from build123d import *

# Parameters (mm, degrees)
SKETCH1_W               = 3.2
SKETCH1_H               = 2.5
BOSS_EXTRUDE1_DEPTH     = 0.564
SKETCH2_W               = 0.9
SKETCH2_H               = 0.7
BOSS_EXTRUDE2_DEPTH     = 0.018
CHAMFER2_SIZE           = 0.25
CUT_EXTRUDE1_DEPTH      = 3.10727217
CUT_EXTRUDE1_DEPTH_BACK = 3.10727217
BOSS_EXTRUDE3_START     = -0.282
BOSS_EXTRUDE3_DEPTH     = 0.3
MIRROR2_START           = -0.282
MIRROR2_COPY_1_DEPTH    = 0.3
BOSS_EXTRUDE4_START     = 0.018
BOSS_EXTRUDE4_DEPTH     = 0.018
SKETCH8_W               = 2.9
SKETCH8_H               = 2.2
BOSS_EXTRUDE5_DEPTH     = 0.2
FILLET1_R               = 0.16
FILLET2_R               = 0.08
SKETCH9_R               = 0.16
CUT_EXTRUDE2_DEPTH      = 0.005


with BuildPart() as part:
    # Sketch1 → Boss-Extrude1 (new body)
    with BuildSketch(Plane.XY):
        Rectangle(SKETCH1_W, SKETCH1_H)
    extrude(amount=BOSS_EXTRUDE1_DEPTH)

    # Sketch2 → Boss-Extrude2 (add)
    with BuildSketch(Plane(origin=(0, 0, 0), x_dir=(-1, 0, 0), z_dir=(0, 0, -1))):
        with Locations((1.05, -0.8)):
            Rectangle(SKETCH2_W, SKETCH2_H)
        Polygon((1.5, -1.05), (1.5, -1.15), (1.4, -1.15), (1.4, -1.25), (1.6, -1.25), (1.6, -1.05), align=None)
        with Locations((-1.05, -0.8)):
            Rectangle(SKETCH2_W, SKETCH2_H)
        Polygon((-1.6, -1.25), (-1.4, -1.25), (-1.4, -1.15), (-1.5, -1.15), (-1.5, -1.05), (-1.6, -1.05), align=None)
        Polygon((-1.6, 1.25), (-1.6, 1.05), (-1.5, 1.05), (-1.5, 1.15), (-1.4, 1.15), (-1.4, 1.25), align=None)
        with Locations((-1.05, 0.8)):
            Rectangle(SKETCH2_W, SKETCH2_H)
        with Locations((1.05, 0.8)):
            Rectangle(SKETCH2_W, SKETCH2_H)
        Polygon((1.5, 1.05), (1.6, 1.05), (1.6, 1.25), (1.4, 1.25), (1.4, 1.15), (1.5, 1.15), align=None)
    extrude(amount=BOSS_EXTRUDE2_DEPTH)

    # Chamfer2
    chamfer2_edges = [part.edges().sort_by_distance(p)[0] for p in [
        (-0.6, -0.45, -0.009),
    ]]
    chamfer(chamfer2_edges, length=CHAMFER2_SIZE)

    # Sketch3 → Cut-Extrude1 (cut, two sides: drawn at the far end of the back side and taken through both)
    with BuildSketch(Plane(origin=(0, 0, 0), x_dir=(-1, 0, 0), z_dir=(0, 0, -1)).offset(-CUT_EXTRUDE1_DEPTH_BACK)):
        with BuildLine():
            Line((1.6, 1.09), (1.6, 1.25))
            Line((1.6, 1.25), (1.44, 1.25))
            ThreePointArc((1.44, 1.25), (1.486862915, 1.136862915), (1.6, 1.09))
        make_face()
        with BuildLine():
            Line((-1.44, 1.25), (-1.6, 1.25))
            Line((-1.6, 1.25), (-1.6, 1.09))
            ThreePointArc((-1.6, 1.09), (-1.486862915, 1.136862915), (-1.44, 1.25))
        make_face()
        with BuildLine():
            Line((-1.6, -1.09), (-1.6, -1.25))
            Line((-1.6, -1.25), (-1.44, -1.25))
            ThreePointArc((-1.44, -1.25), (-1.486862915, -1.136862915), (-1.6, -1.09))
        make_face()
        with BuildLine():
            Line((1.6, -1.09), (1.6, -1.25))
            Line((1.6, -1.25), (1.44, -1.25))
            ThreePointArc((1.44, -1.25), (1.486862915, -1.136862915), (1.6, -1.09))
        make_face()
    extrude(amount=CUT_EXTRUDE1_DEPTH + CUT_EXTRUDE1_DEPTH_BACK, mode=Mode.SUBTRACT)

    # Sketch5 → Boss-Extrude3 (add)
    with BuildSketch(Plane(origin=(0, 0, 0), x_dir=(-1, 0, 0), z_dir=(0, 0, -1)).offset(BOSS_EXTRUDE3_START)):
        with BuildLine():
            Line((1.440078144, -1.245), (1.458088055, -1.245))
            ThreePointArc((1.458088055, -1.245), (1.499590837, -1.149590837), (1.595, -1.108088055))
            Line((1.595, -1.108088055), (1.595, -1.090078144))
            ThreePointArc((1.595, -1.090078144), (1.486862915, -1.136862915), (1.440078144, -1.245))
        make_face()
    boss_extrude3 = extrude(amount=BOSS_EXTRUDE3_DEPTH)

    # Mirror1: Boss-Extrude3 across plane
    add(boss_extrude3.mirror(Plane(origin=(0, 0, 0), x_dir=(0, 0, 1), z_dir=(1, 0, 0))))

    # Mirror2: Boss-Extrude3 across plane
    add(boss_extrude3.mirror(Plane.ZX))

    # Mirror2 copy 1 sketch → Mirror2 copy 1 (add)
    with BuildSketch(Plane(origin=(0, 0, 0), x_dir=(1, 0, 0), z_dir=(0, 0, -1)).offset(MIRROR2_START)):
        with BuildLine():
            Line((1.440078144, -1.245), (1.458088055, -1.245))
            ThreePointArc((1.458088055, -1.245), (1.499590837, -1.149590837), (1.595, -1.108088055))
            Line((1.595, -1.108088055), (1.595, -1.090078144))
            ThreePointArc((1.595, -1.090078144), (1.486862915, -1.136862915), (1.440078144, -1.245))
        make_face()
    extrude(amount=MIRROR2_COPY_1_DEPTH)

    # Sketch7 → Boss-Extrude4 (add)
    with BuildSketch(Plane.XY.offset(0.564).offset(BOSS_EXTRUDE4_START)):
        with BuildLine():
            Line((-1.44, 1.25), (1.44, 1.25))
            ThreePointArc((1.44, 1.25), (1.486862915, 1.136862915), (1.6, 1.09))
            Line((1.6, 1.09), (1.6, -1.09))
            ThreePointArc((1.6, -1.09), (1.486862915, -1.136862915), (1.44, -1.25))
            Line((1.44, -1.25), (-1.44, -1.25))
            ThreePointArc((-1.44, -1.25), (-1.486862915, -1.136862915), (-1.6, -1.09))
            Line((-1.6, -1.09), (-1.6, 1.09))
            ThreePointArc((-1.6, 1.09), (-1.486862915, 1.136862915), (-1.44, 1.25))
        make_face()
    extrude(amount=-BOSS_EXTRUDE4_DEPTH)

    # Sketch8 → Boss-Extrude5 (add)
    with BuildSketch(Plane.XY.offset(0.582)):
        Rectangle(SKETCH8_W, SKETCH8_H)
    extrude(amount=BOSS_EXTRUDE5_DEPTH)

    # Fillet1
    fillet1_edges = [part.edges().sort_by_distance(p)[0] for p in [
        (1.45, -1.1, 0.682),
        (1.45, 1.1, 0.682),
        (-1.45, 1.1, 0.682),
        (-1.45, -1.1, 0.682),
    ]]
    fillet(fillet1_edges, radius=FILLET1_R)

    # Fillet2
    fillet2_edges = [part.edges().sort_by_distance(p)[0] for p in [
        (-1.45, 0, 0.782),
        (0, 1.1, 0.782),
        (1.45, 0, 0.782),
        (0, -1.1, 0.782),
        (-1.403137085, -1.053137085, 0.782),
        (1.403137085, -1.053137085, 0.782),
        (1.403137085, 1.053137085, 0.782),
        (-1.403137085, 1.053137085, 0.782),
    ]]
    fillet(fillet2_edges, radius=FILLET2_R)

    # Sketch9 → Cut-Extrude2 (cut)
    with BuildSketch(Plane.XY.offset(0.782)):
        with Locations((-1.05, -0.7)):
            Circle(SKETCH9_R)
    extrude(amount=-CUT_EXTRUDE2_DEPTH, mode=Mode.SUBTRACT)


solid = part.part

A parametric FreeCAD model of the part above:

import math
import FreeCAD as App
import Part
import Sketcher
from FreeCAD import Vector
Q = App.Units.Quantity


def edges_at(feature, points):
    """Names of the edges that pass closest to the given points."""
    edges = feature.Shape.Edges
    near = lambda p: min(range(len(edges)), key=lambda i: edges[i].distToShape(Part.Vertex(*p))[0])
    return sorted({f"Edge{near(p) + 1}" for p in points})


def add_polygon(sketch, points):
    """Adds a closed chain of lines whose ends are joined by coincident constraints."""
    first, n = sketch.GeometryCount, len(points)
    for a, b in zip(points, points[1:] + points[:1]):
        sketch.addGeometry(Part.LineSegment(App.Vector(*a, 0), App.Vector(*b, 0)), False)
    for i in range(n):
        sketch.addConstraint(Sketcher.Constraint("Coincident", first + i, 2, first + (i + 1) % n, 1))

doc = App.newDocument("Part")
body = doc.addObject("PartDesign::Body", "Body")

sketch1 = body.newObject("Sketcher::SketchObject", "Sketch")
sketch1.AttachmentSupport = (doc.getObject("XY_Plane"), [""])
sketch1.MapMode = "FlatFace"
add_polygon(sketch1, [(-1.6, 1.2), (-1.6, -1.2), (1.6, -1.2), (1.6, 1.2)])
sketch1.addConstraint(Sketcher.Constraint("Vertical", 0))
sketch1.addConstraint(Sketcher.Constraint("Horizontal", 1))
sketch1.addConstraint(Sketcher.Constraint("Vertical", 2))
sketch1.addConstraint(Sketcher.Constraint("Horizontal", 3))
sketch1.addConstraint(Sketcher.Constraint("Symmetric", 0, 2, 2, 2, -1, 1))
sketch1.addConstraint(Sketcher.Constraint("DistanceX", 1, 1, 1, 2, Q("3.2 mm")))
sketch1.addConstraint(Sketcher.Constraint("DistanceY", 0, 2, 0, 1, Q("2.5 mm")))
pad1 = body.newObject("PartDesign::Pad", "Pad")
pad1.Profile = sketch1
pad1.Length = 0.564

sketch2 = body.newObject("Sketcher::SketchObject", "Sketch001")
sketch2.AttachmentSupport = (doc.getObject("XY_Plane"), [""])
sketch2.MapMode = "FlatFace"
add_polygon(sketch2, [(-0.6, -0.45), (-0.6, -1.15), (-1.4, -1.15), (-1.4, -1.25), (-1.6, -1.25), (-1.6, -1.05), (-1.5, -1.05), (-1.5, -0.45)])
add_polygon(sketch2, [(1.5, -0.45), (1.5, -1.05), (1.6, -1.05), (1.6, -1.25), (1.4, -1.25), (1.4, -1.15), (0.6, -1.15), (0.6, -0.45)])
add_polygon(sketch2, [(1.6, 1.25), (1.6, 1.05), (1.5, 1.05), (1.5, 0.45), (0.6, 0.45), (0.6, 1.15), (1.4, 1.15), (1.4, 1.25)])
add_polygon(sketch2, [(-0.6, 1.15), (-0.6, 0.45), (-1.5, 0.45), (-1.5, 1.05), (-1.6, 1.05), (-1.6, 1.25), (-1.4, 1.25), (-1.4, 1.15)])
sketch2.addConstraint(Sketcher.Constraint("Vertical", 0))
sketch2.addConstraint(Sketcher.Constraint("Horizontal", 1))
sketch2.addConstraint(Sketcher.Constraint("Vertical", 2))
sketch2.addConstraint(Sketcher.Constraint("Horizontal", 3))
sketch2.addConstraint(Sketcher.Constraint("Vertical", 4))
sketch2.addConstraint(Sketcher.Constraint("Horizontal", 5))
sketch2.addConstraint(Sketcher.Constraint("Vertical", 6))
sketch2.addConstraint(Sketcher.Constraint("Horizontal", 7))
sketch2.addConstraint(Sketcher.Constraint("Vertical", 8))
sketch2.addConstraint(Sketcher.Constraint("Horizontal", 9))
sketch2.addConstraint(Sketcher.Constraint("Vertical", 10))
sketch2.addConstraint(Sketcher.Constraint("Horizontal", 11))
sketch2.addConstraint(Sketcher.Constraint("Vertical", 12))
sketch2.addConstraint(Sketcher.Constraint("Horizontal", 13))
sketch2.addConstraint(Sketcher.Constraint("Vertical", 14))
sketch2.addConstraint(Sketcher.Constraint("Horizontal", 15))
sketch2.addConstraint(Sketcher.Constraint("Vertical", 16))
sketch2.addConstraint(Sketcher.Constraint("Horizontal", 17))
sketch2.addConstraint(Sketcher.Constraint("Vertical", 18))
sketch2.addConstraint(Sketcher.Constraint("Horizontal", 19))
sketch2.addConstraint(Sketcher.Constraint("Vertical", 20))
sketch2.addConstraint(Sketcher.Constraint("Horizontal", 21))
sketch2.addConstraint(Sketcher.Constraint("Vertical", 22))
sketch2.addConstraint(Sketcher.Constraint("Horizontal", 23))
sketch2.addConstraint(Sketcher.Constraint("Vertical", 24))
sketch2.addConstraint(Sketcher.Constraint("Horizontal", 25))
sketch2.addConstraint(Sketcher.Constraint("Vertical", 26))
sketch2.addConstraint(Sketcher.Constraint("Horizontal", 27))
sketch2.addConstraint(Sketcher.Constraint("Vertical", 28))
sketch2.addConstraint(Sketcher.Constraint("Horizontal", 29))
sketch2.addConstraint(Sketcher.Constraint("Vertical", 30))
sketch2.addConstraint(Sketcher.Constraint("Horizontal", 31))
sketch2.addConstraint(Sketcher.Constraint("Symmetric", 4, 2, 16, 2, -1, 1))
sketch2.addConstraint(Sketcher.Constraint("Symmetric", 6, 2, 18, 2, -1, 1))
sketch2.addConstraint(Sketcher.Constraint("Symmetric", 0, 2, 20, 2, -1, 1))
sketch2.addConstraint(Sketcher.Constraint("Symmetric", 2, 2, 22, 2, -1, 1))
sketch2.addConstraint(Sketcher.Constraint("Symmetric", 14, 2, 24, 2, -1, 1))
sketch2.addConstraint(Sketcher.Constraint("Symmetric", 8, 2, 26, 2, -1, 1))
sketch2.addConstraint(Sketcher.Constraint("Symmetric", 10, 2, 28, 2, -1, 1))
sketch2.addConstraint(Sketcher.Constraint("Symmetric", 12, 2, 30, 2, -1, 1))
sketch2.addConstraint(Sketcher.Constraint("Symmetric", 5, 2, 8, 2, -2))
sketch2.addConstraint(Sketcher.Constraint("Symmetric", 3, 2, 10, 2, -2))
sketch2.addConstraint(Sketcher.Constraint("Symmetric", 1, 2, 12, 2, -2))
sketch2.addConstraint(Sketcher.Constraint("Symmetric", 7, 2, 14, 2, -2))
sketch2.addConstraint(Sketcher.Constraint("Equal", 27, 2))
sketch2.addConstraint(Sketcher.Constraint("Equal", 29, 4))
sketch2.addConstraint(Sketcher.Constraint("DistanceX", 1, 2, 1, 1, Q("0.8 mm")))
sketch2.addConstraint(Sketcher.Constraint("DistanceX", 3, 2, 3, 1, Q("0.2 mm")))
sketch2.addConstraint(Sketcher.Constraint("DistanceX", 5, 1, 5, 2, Q("0.1 mm")))
sketch2.addConstraint(Sketcher.Constraint("DistanceY", 0, 2, 0, 1, Q("0.7 mm")))
sketch2.addConstraint(Sketcher.Constraint("DistanceX", 5, 2, 8, 2, Q("3 mm")))
sketch2.addConstraint(Sketcher.Constraint("DistanceY", 15, 2, 16, 2, Q("1.5 mm")))
pad2 = body.newObject("PartDesign::Pad", "Pad001")
pad2.Profile = sketch2
pad2.Length = 0.018
pad2.Reversed = True
doc.recompute()

chamfer = body.newObject("PartDesign::Chamfer", "Chamfer")
chamfer.Base = (pad2, edges_at(pad2, [(-0.6, -0.45, -0.009)]))
chamfer.Size = 0.25

sketch3 = body.newObject("Sketcher::SketchObject", "Sketch002")
sketch3.AttachmentSupport = (doc.getObject("XY_Plane"), [""])
sketch3.MapMode = "FlatFace"
sketch3.addGeometry(Part.LineSegment(Vector(-1.6, 1.09, 0), Vector(-1.6, 1.25, 0)), False)
sketch3.addGeometry(Part.LineSegment(Vector(-1.6, 1.25, 0), Vector(-1.44, 1.25, 0)), False)
sketch3.addGeometry(Part.ArcOfCircle(Part.Circle(Vector(-1.6, 1.25, 0), Vector(0, 0, 1), 0.16), math.radians(-90), math.radians(0)), False)
sketch3.addGeometry(Part.LineSegment(Vector(1.44, 1.25, 0), Vector(1.6, 1.25, 0)), False)
sketch3.addGeometry(Part.LineSegment(Vector(1.6, 1.25, 0), Vector(1.6, 1.09, 0)), False)
sketch3.addGeometry(Part.ArcOfCircle(Part.Circle(Vector(1.6, 1.25, 0), Vector(0, 0, 1), 0.16), math.radians(180), math.radians(270)), False)
sketch3.addGeometry(Part.LineSegment(Vector(1.6, -1.09, 0), Vector(1.6, -1.25, 0)), False)
sketch3.addGeometry(Part.LineSegment(Vector(1.6, -1.25, 0), Vector(1.44, -1.25, 0)), False)
sketch3.addGeometry(Part.ArcOfCircle(Part.Circle(Vector(1.6, -1.25, 0), Vector(0, 0, 1), 0.16), math.radians(90), math.radians(180)), False)
sketch3.addGeometry(Part.LineSegment(Vector(-1.6, -1.25, 0), Vector(-1.6, -1.09, 0)), False)
sketch3.addGeometry(Part.ArcOfCircle(Part.Circle(Vector(-1.6, -1.25, 0), Vector(0, 0, 1), 0.16), math.radians(0), math.radians(90)), False)
sketch3.addGeometry(Part.LineSegment(Vector(-1.44, -1.25, 0), Vector(-1.6, -1.25, 0)), False)
sketch3.addConstraint(Sketcher.Constraint("Coincident", 0, 2, 1, 1))
sketch3.addConstraint(Sketcher.Constraint("Coincident", 1, 2, 2, 2))
sketch3.addConstraint(Sketcher.Constraint("Coincident", 2, 1, 0, 1))
sketch3.addConstraint(Sketcher.Constraint("Coincident", 3, 2, 4, 1))
sketch3.addConstraint(Sketcher.Constraint("Coincident", 4, 2, 5, 2))
sketch3.addConstraint(Sketcher.Constraint("Coincident", 5, 1, 3, 1))
sketch3.addConstraint(Sketcher.Constraint("Coincident", 6, 2, 7, 1))
sketch3.addConstraint(Sketcher.Constraint("Coincident", 7, 2, 8, 2))
sketch3.addConstraint(Sketcher.Constraint("Coincident", 8, 1, 6, 1))
sketch3.addConstraint(Sketcher.Constraint("Coincident", 9, 2, 10, 2))
sketch3.addConstraint(Sketcher.Constraint("Coincident", 10, 1, 11, 1))
sketch3.addConstraint(Sketcher.Constraint("Coincident", 11, 2, 9, 1))
sketch3.addConstraint(Sketcher.Constraint("Vertical", 0))
sketch3.addConstraint(Sketcher.Constraint("Horizontal", 1))
sketch3.addConstraint(Sketcher.Constraint("Horizontal", 3))
sketch3.addConstraint(Sketcher.Constraint("Vertical", 4))
sketch3.addConstraint(Sketcher.Constraint("Vertical", 6))
sketch3.addConstraint(Sketcher.Constraint("Horizontal", 7))
sketch3.addConstraint(Sketcher.Constraint("Vertical", 9))
sketch3.addConstraint(Sketcher.Constraint("Horizontal", 11))
sketch3.addConstraint(Sketcher.Constraint("Coincident", 0, 2, 2, 3))
sketch3.addConstraint(Sketcher.Constraint("Coincident", 3, 2, 5, 3))
sketch3.addConstraint(Sketcher.Constraint("Coincident", 6, 2, 8, 3))
sketch3.addConstraint(Sketcher.Constraint("Coincident", 11, 2, 10, 3))
sketch3.addConstraint(Sketcher.Constraint("Equal", 2, 5))
sketch3.addConstraint(Sketcher.Constraint("Equal", 5, 8))
sketch3.addConstraint(Sketcher.Constraint("Equal", 8, 10))
sketch3.addConstraint(Sketcher.Constraint("Symmetric", 2, 3, 8, 3, -1, 1))
sketch3.addConstraint(Sketcher.Constraint("Symmetric", 5, 3, 10, 3, -1, 1))
sketch3.addConstraint(Sketcher.Constraint("Symmetric", 2, 3, 5, 3, -2))
sketch3.addConstraint(Sketcher.Constraint("Radius", 2, Q("0.16 mm")))
sketch3.addConstraint(Sketcher.Constraint("DistanceX", 2, 3, -1, 1, Q("1.6 mm")))
sketch3.addConstraint(Sketcher.Constraint("DistanceY", 8, 3, 5, 3, Q("2.5 mm")))
pocket1 = body.newObject("PartDesign::Pocket", "Pocket")
pocket1.Profile = sketch3
pocket1.Type = "ThroughAll"
pocket1.Midplane = True

sketch4 = body.newObject("Sketcher::SketchObject", "Sketch003")
sketch4.AttachmentSupport = (doc.getObject("XY_Plane"), [""])
sketch4.MapMode = "FlatFace"
sketch4.AttachmentOffset = App.Placement(Vector(0, 0, 0.282), App.Rotation())
sketch4.addGeometry(Part.LineSegment(Vector(-1.44, -1.245, 0), Vector(-1.458, -1.245, 0)), False)
sketch4.addGeometry(Part.ArcOfCircle(Part.Circle(Vector(-1.6, -1.25, 0), Vector(0, 0, 1), 0.142), math.radians(2), math.radians(88)), False)
sketch4.addGeometry(Part.LineSegment(Vector(-1.595, -1.108, 0), Vector(-1.595, -1.09, 0)), False)
sketch4.addGeometry(Part.ArcOfCircle(Part.Circle(Vector(-1.6, -1.25, 0), Vector(0, 0, 1), 0.16), math.radians(2), math.radians(88)), False)
sketch4.addConstraint(Sketcher.Constraint("Coincident", 0, 2, 1, 1))
sketch4.addConstraint(Sketcher.Constraint("Coincident", 1, 2, 2, 1))
sketch4.addConstraint(Sketcher.Constraint("Coincident", 2, 2, 3, 2))
sketch4.addConstraint(Sketcher.Constraint("Coincident", 3, 1, 0, 1))
sketch4.addConstraint(Sketcher.Constraint("Horizontal", 0))
sketch4.addConstraint(Sketcher.Constraint("Vertical", 2))
sketch4.addConstraint(Sketcher.Constraint("Coincident", 3, 3, 1, 3))
sketch4.addConstraint(Sketcher.Constraint("Radius", 3, Q("0.16 mm")))
sketch4.addConstraint(Sketcher.Constraint("Radius", 1, Q("0.142 mm")))
sketch4.addConstraint(Sketcher.Constraint("DistanceX", 1, 3, -1, 1, Q("1.6 mm")))
sketch4.addConstraint(Sketcher.Constraint("DistanceY", 1, 3, -1, 1, Q("1.25 mm")))
sketch4.addConstraint(Sketcher.Constraint("DistanceY", 0, 2, -1, 1, Q("1.245 mm")))
sketch4.addConstraint(Sketcher.Constraint("DistanceX", 1, 2, -1, 1, Q("1.595 mm")))
pad3 = body.newObject("PartDesign::Pad", "Pad002")
pad3.Profile = sketch4
pad3.Length = 0.3
pad3.Reversed = True
doc.recompute()

mirrored = body.newObject("PartDesign::Mirrored", "Mirrored")
mirrored.Originals = [pad3]
mirrored.MirrorPlane = (doc.getObject("YZ_Plane"), [""])
body.Tip = mirrored
doc.recompute()

mirrored2 = body.newObject("PartDesign::Mirrored", "Mirrored001")
mirrored2.Originals = [pad3]
mirrored2.MirrorPlane = (doc.getObject("XZ_Plane"), [""])
body.Tip = mirrored2

sketch5 = body.newObject("Sketcher::SketchObject", "Sketch004")
sketch5.AttachmentSupport = (doc.getObject("XY_Plane"), [""])
sketch5.MapMode = "FlatFace"
sketch5.AttachmentOffset = App.Placement(Vector(0, 0, 0.282), App.Rotation())
sketch5.addGeometry(Part.LineSegment(Vector(1.44, 1.245, 0), Vector(1.458, 1.245, 0)), False)
sketch5.addGeometry(Part.ArcOfCircle(Part.Circle(Vector(1.6, 1.25, 0), Vector(0, 0, 1), 0.142), math.radians(-178), math.radians(-92)), False)
sketch5.addGeometry(Part.LineSegment(Vector(1.595, 1.108, 0), Vector(1.595, 1.09, 0)), False)
sketch5.addGeometry(Part.ArcOfCircle(Part.Circle(Vector(1.6, 1.25, 0), Vector(0, 0, 1), 0.16), math.radians(-178), math.radians(-92)), False)
sketch5.addConstraint(Sketcher.Constraint("Coincident", 0, 2, 1, 1))
sketch5.addConstraint(Sketcher.Constraint("Coincident", 1, 2, 2, 1))
sketch5.addConstraint(Sketcher.Constraint("Coincident", 2, 2, 3, 2))
sketch5.addConstraint(Sketcher.Constraint("Coincident", 3, 1, 0, 1))
sketch5.addConstraint(Sketcher.Constraint("Horizontal", 0))
sketch5.addConstraint(Sketcher.Constraint("Vertical", 2))
sketch5.addConstraint(Sketcher.Constraint("Coincident", 3, 3, 1, 3))
sketch5.addConstraint(Sketcher.Constraint("Radius", 3, Q("0.16 mm")))
sketch5.addConstraint(Sketcher.Constraint("Radius", 1, Q("0.142 mm")))
sketch5.addConstraint(Sketcher.Constraint("DistanceX", -1, 1, 1, 3, Q("1.6 mm")))
sketch5.addConstraint(Sketcher.Constraint("DistanceY", -1, 1, 1, 3, Q("1.25 mm")))
sketch5.addConstraint(Sketcher.Constraint("DistanceY", -1, 1, 0, 2, Q("1.245 mm")))
sketch5.addConstraint(Sketcher.Constraint("DistanceX", -1, 1, 1, 2, Q("1.595 mm")))
pad4 = body.newObject("PartDesign::Pad", "Pad003")
pad4.Profile = sketch5
pad4.Length = 0.3
pad4.Reversed = True

sketch6 = body.newObject("Sketcher::SketchObject", "Sketch005")
sketch6.AttachmentSupport = (doc.getObject("XY_Plane"), [""])
sketch6.MapMode = "FlatFace"
sketch6.AttachmentOffset = App.Placement(Vector(0, 0, 0.582), App.Rotation())
sketch6.addGeometry(Part.LineSegment(Vector(1.44, 1.25, 0), Vector(-1.44, 1.25, 0)), False)
sketch6.addGeometry(Part.ArcOfCircle(Part.Circle(Vector(-1.6, 1.25, 0), Vector(0, 0, 1), 0.16), math.radians(-90), math.radians(0)), False)
sketch6.addGeometry(Part.LineSegment(Vector(-1.6, 1.09, 0), Vector(-1.6, -1.09, 0)), False)
sketch6.addGeometry(Part.ArcOfCircle(Part.Circle(Vector(-1.6, -1.25, 0), Vector(0, 0, 1), 0.16), math.radians(0), math.radians(90)), False)
sketch6.addGeometry(Part.LineSegment(Vector(-1.44, -1.25, 0), Vector(1.44, -1.25, 0)), False)
sketch6.addGeometry(Part.ArcOfCircle(Part.Circle(Vector(1.6, -1.25, 0), Vector(0, 0, 1), 0.16), math.radians(90), math.radians(180)), False)
sketch6.addGeometry(Part.LineSegment(Vector(1.6, -1.09, 0), Vector(1.6, 1.09, 0)), False)
sketch6.addGeometry(Part.ArcOfCircle(Part.Circle(Vector(1.6, 1.25, 0), Vector(0, 0, 1), 0.16), math.radians(180), math.radians(270)), False)
sketch6.addConstraint(Sketcher.Constraint("Coincident", 0, 2, 1, 2))
sketch6.addConstraint(Sketcher.Constraint("Coincident", 1, 1, 2, 1))
sketch6.addConstraint(Sketcher.Constraint("Coincident", 2, 2, 3, 2))
sketch6.addConstraint(Sketcher.Constraint("Coincident", 3, 1, 4, 1))
sketch6.addConstraint(Sketcher.Constraint("Coincident", 4, 2, 5, 2))
sketch6.addConstraint(Sketcher.Constraint("Coincident", 5, 1, 6, 1))
sketch6.addConstraint(Sketcher.Constraint("Coincident", 6, 2, 7, 2))
sketch6.addConstraint(Sketcher.Constraint("Coincident", 7, 1, 0, 1))
sketch6.addConstraint(Sketcher.Constraint("Horizontal", 0))
sketch6.addConstraint(Sketcher.Constraint("Vertical", 2))
sketch6.addConstraint(Sketcher.Constraint("Horizontal", 4))
sketch6.addConstraint(Sketcher.Constraint("Vertical", 6))
sketch6.addConstraint(Sketcher.Constraint("Equal", 1, 3))
sketch6.addConstraint(Sketcher.Constraint("Equal", 3, 5))
sketch6.addConstraint(Sketcher.Constraint("Equal", 5, 7))
sketch6.addConstraint(Sketcher.Constraint("Symmetric", 1, 3, 5, 3, -1, 1))
sketch6.addConstraint(Sketcher.Constraint("Symmetric", 3, 3, 7, 3, -1, 1))
sketch6.addConstraint(Sketcher.Constraint("Symmetric", 3, 3, 5, 3, -2))
sketch6.addConstraint(Sketcher.Constraint("Horizontal", 7, 3, 0, 2))
sketch6.addConstraint(Sketcher.Constraint("Horizontal", 5, 3, 3, 1))
sketch6.addConstraint(Sketcher.Constraint("Vertical", 3, 3, 1, 1))
sketch6.addConstraint(Sketcher.Constraint("Vertical", 7, 3, 5, 1))
sketch6.addConstraint(Sketcher.Constraint("Radius", 1, Q("0.16 mm")))
sketch6.addConstraint(Sketcher.Constraint("DistanceX", 0, 2, 0, 1, Q("2.88 mm")))
sketch6.addConstraint(Sketcher.Constraint("DistanceY", 2, 2, 2, 1, Q("2.18 mm")))
pad5 = body.newObject("PartDesign::Pad", "Pad004")
pad5.Profile = sketch6
pad5.Length = 0.018
pad5.Reversed = True

sketch7 = body.newObject("Sketcher::SketchObject", "Sketch006")
sketch7.AttachmentSupport = (doc.getObject("XY_Plane"), [""])
sketch7.MapMode = "FlatFace"
sketch7.AttachmentOffset = App.Placement(Vector(0, 0, 0.582), App.Rotation())
add_polygon(sketch7, [(-1.4, 1.1), (-1.4, -1.1), (1.4, -1.1), (1.4, 1.1)])
sketch7.addConstraint(Sketcher.Constraint("Vertical", 0))
sketch7.addConstraint(Sketcher.Constraint("Horizontal", 1))
sketch7.addConstraint(Sketcher.Constraint("Vertical", 2))
sketch7.addConstraint(Sketcher.Constraint("Horizontal", 3))
sketch7.addConstraint(Sketcher.Constraint("Symmetric", 0, 2, 2, 2, -1, 1))
sketch7.addConstraint(Sketcher.Constraint("DistanceX", 1, 1, 1, 2, Q("2.9 mm")))
sketch7.addConstraint(Sketcher.Constraint("DistanceY", 0, 2, 0, 1, Q("2.2 mm")))
pad6 = body.newObject("PartDesign::Pad", "Pad005")
pad6.Profile = sketch7
pad6.Length = 0.2
doc.recompute()

fillet = body.newObject("PartDesign::Fillet", "Fillet")
fillet.Base = (pad6, edges_at(pad6, [
    (1.45, -1.1, 0.682),
    (1.45, 1.1, 0.682),
    (-1.45, 1.1, 0.682),
    (-1.45, -1.1, 0.682),
]))
fillet.Radius = 0.16
doc.recompute()

fillet2 = body.newObject("PartDesign::Fillet", "Fillet001")
fillet2.Base = (fillet, edges_at(fillet, [
    (-1.45, 0, 0.782),
    (0, 1.1, 0.782),
    (1.45, 0, 0.782),
    (0, -1.1, 0.782),
    (-1.403, -1.053, 0.782),
    (1.403, -1.053, 0.782),
    (1.403, 1.053, 0.782),
    (-1.403, 1.053, 0.782),
]))
fillet2.Radius = 0.08

sketch8 = body.newObject("Sketcher::SketchObject", "Sketch007")
sketch8.AttachmentSupport = (doc.getObject("XY_Plane"), [""])
sketch8.MapMode = "FlatFace"
sketch8.AttachmentOffset = App.Placement(Vector(0, 0, 0.782), App.Rotation())
sketch8.addGeometry(Part.Circle(Vector(-1.05, -0.7, 0), Vector(0, 0, 1), 0.16), False)
sketch8.addConstraint(Sketcher.Constraint("Diameter", 0, Q("0.32 mm")))
sketch8.addConstraint(Sketcher.Constraint("DistanceY", 0, 3, -1, 1, Q("0.7 mm")))
sketch8.addConstraint(Sketcher.Constraint("DistanceX", 0, 3, -1, 1, Q("1.05 mm")))
pocket2 = body.newObject("PartDesign::Pocket", "Pocket001")
pocket2.Profile = sketch8
pocket2.Length = 0.005

doc.recompute()
